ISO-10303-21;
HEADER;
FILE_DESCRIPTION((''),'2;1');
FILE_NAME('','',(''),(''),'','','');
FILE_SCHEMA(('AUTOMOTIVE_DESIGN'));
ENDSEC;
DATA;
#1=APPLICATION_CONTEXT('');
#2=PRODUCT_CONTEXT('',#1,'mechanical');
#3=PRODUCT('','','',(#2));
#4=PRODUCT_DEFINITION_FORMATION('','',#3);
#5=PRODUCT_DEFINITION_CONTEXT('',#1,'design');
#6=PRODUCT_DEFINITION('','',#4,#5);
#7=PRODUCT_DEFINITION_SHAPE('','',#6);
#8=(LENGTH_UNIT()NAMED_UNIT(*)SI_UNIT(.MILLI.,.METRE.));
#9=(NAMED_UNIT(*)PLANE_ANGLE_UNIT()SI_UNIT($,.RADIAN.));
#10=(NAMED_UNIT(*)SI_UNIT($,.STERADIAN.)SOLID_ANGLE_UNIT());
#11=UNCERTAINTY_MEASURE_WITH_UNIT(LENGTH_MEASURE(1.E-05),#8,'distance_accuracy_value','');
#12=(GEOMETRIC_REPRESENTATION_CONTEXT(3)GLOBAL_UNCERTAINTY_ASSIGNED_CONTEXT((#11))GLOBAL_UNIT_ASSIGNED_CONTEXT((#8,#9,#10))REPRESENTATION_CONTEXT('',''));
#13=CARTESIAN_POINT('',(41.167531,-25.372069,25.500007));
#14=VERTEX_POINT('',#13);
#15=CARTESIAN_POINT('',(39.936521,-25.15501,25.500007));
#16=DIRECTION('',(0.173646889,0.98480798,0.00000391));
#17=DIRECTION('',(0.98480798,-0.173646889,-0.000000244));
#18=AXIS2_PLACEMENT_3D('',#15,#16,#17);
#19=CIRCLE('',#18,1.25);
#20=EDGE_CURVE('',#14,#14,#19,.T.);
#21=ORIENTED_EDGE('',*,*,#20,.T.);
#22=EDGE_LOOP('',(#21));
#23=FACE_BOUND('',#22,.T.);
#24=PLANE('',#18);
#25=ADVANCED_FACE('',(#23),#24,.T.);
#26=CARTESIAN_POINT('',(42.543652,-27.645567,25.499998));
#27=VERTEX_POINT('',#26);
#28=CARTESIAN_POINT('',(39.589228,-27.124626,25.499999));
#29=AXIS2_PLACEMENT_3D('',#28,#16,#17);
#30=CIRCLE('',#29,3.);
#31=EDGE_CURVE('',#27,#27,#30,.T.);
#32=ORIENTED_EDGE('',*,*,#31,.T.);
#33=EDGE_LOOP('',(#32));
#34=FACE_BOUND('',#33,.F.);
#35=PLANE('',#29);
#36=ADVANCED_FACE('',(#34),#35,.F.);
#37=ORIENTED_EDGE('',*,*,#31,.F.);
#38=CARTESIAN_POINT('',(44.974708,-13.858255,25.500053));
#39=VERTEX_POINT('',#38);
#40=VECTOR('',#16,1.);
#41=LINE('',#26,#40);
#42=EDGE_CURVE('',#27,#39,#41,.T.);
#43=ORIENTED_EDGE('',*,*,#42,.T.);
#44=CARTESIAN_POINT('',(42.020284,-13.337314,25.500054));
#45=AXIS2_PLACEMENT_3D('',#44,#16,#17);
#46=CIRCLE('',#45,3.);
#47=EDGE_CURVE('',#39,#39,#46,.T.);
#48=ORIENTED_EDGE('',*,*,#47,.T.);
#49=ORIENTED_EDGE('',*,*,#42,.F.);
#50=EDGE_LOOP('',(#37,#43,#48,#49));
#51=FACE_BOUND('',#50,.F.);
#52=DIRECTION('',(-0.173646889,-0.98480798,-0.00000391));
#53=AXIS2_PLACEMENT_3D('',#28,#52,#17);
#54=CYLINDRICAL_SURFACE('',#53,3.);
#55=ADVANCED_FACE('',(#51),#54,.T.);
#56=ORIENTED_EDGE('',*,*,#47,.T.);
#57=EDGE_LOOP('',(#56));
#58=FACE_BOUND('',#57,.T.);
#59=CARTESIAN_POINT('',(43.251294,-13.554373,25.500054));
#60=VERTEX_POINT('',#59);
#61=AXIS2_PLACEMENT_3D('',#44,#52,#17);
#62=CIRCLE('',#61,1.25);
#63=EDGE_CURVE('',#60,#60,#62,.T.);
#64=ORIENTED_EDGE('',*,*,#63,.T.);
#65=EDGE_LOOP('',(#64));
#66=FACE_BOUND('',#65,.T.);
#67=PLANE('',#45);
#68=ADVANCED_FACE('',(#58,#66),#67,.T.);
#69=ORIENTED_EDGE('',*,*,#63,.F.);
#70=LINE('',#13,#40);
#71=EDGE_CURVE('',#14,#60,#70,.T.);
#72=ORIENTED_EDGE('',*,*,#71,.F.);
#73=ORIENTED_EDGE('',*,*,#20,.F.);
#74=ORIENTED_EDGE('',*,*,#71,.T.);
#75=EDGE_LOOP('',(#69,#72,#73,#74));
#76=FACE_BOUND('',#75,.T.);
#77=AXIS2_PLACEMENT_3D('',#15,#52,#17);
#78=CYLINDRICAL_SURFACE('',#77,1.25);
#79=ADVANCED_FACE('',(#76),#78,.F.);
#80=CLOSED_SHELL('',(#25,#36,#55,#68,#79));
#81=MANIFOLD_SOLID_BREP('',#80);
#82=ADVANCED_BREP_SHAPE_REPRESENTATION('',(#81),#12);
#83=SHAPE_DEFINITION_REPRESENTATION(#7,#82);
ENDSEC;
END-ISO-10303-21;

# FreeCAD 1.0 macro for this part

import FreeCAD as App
import Part
import Sketcher

V = App.Vector
Q = App.Units.Quantity

doc = App.newDocument("Part")
body = doc.addObject("PartDesign::Body", "Body")

# Sketch on XY plane
sketch1 = body.newObject("Sketcher::SketchObject", "Sketch")
sketch1.AttachmentSupport = (doc.getObject("XY_Plane"), [""])
sketch1.MapMode = "FlatFace"
sketch1.addGeometry(Part.Circle(V(0, 0, 0), V(0, 0, 1), 1.2), False)
sketch1.addConstraint([
    Sketcher.Constraint("Coincident", 0, 3, -1, 1),
    Sketcher.Constraint("Diameter", 0, Q("2.5 mm")),
])
pad1 = body.newObject("PartDesign::Pad", "Pad")
pad1.Profile = sketch1
pad1.Length = 14
body2 = doc.addObject("PartDesign::Body", "Body001")
doc.recompute()

body.Placement = App.Placement(V(0, 0, 0), App.Rotation(V(1, 0, 0), 270.000224))
boolean = body2.newObject("PartDesign::Boolean", "Boolean")
boolean.Type = "Fuse"
boolean.addObjects([body])
body3 = doc.addObject("PartDesign::Body", "Body002")
doc.recompute()

body2.Placement = App.Placement(V(0, 0, 0), App.Rotation(V(0, 1, 0), 0.000014))
boolean2 = body3.newObject("PartDesign::Boolean", "Boolean001")
boolean2.Type = "Fuse"
boolean2.addObjects([body2])
body4 = doc.addObject("PartDesign::Body", "Body003")
doc.recompute()

body3.Placement = App.Placement(V(39.936521, -25.15501, 25.500007), App.Rotation(V(0, 0, 1), 350.000075))
boolean3 = body4.newObject("PartDesign::Boolean", "Boolean002")
boolean3.Type = "Fuse"
boolean3.addObjects([body3])
body5 = doc.addObject("PartDesign::Body", "Body004")

# Sketch on XY plane
sketch2 = body5.newObject("Sketcher::SketchObject", "Sketch001")
sketch2.AttachmentSupport = (doc.getObject("XY_Plane004"), [""])
sketch2.MapMode = "FlatFace"
sketch2.addGeometry(Part.Circle(V(0, 0, 0), V(0, 0, 1), 3), False)
sketch2.addConstraint([
    Sketcher.Constraint("Coincident", 0, 3, -1, 1),
    Sketcher.Constraint("Diameter", 0, Q("6 mm")),
])
pad2 = body5.newObject("PartDesign::Pad", "Pad001")
pad2.Profile = sketch2
pad2.Length = 14
body6 = doc.addObject("PartDesign::Body", "Body005")
doc.recompute()

body5.Placement = App.Placement(V(0, 0, 0), App.Rotation(V(1, 0, 0), 270.000224))
boolean4 = body6.newObject("PartDesign::Boolean", "Boolean003")
boolean4.Type = "Fuse"
boolean4.addObjects([body5])
body7 = doc.addObject("PartDesign::Body", "Body006")
doc.recompute()

body6.Placement = App.Placement(V(0, 0, 0), App.Rotation(V(0, 1, 0), 0.000014))
boolean5 = body7.newObject("PartDesign::Boolean", "Boolean004")
boolean5.Type = "Fuse"
boolean5.addObjects([body6])
body8 = doc.addObject("PartDesign::Body", "Body007")
doc.recompute()

body7.Placement = App.Placement(V(39.589228, -27.124626, 25.499999), App.Rotation(V(0, 0, 1), 350.000075))
boolean6 = body8.newObject("PartDesign::Boolean", "Boolean005")
boolean6.Type = "Fuse"
boolean6.addObjects([body7])
doc.recompute()

boolean7 = body8.newObject("PartDesign::Boolean", "Boolean006")
boolean7.Type = "Cut"
boolean7.addObjects([body4])

doc.recompute()
